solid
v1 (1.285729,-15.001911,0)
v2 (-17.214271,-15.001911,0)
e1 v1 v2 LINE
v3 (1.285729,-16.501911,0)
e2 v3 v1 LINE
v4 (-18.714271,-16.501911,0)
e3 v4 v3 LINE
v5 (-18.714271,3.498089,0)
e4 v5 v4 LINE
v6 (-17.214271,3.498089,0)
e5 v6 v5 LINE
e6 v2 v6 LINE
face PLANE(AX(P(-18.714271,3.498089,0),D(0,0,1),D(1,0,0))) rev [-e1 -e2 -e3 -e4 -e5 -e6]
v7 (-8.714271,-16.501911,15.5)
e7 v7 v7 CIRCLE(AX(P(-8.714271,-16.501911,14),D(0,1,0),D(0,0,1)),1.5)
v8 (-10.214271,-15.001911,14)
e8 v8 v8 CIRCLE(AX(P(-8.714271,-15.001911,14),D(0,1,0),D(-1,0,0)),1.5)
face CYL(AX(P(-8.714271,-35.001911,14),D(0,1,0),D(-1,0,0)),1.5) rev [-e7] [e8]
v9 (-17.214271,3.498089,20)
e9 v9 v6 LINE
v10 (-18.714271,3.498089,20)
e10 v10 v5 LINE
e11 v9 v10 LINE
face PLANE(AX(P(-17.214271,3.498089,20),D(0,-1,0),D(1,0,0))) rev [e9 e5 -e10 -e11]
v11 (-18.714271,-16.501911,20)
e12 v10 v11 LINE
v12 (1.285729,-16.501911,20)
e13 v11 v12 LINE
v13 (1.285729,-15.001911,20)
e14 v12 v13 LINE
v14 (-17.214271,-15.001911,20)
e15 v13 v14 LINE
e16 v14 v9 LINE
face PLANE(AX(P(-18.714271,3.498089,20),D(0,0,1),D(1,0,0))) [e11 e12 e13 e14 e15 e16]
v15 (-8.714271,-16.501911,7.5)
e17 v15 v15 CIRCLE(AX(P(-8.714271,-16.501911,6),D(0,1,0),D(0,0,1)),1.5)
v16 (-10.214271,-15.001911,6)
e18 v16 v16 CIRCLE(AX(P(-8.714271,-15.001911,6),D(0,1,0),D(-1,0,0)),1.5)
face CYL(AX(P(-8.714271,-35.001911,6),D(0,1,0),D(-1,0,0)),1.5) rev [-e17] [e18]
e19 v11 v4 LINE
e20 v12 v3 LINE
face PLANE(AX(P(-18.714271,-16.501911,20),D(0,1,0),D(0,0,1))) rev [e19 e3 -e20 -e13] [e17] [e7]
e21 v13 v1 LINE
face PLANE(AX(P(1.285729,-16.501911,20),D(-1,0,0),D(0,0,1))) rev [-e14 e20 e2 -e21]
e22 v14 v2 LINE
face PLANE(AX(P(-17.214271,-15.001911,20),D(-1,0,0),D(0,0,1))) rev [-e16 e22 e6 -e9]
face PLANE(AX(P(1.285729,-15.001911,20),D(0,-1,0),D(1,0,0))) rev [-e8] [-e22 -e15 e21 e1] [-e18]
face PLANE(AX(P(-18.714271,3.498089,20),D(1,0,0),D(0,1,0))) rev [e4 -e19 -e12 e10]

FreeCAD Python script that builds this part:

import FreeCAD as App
import Part
import Sketcher

V = App.Vector


def add_polygon(sketch, points):
    """Adds a closed chain of lines whose ends are joined by coincident constraints."""
    first, n = sketch.GeometryCount, len(points)
    for a, b in zip(points, points[1:] + points[:1]):
        sketch.addGeometry(Part.LineSegment(App.Vector(*a, 0), App.Vector(*b, 0)), False)
    for i in range(n):
        sketch.addConstraint(Sketcher.Constraint("Coincident", first + i, 2, first + (i + 1) % n, 1))

doc = App.newDocument("Part")
body = doc.addObject("PartDesign::Body", "Body")

# Sketch on XY plane
sketch1 = body.newObject("Sketcher::SketchObject", "Sketch")
sketch1.AttachmentSupport = (doc.getObject("XY_Plane"), [""])
sketch1.MapMode = "FlatFace"
add_polygon(sketch1, [(-18.7, 3.5), (-18.7, -16.5), (1.3, -16.5), (1.3, -15), (-17.2, -15), (-17.2, 3.5)])  # lines 0-5
sketch1.addConstraint([
    Sketcher.Constraint("Vertical", 0),
    Sketcher.Constraint("Horizontal", 1),
    Sketcher.Constraint("Vertical", 2),
    Sketcher.Constraint("Horizontal", 3),
    Sketcher.Constraint("Vertical", 4),
    Sketcher.Constraint("Horizontal", 5),
    Sketcher.Constraint("Equal", 1, 0),
    Sketcher.Constraint("Equal", 5, 2),
    Sketcher.Constraint("DistanceX", 1, 1, 1, 2, 20.0),
    Sketcher.Constraint("DistanceX", 3, 2, 3, 1, 18.5),
    Sketcher.Constraint("DistanceX", 0, 2, -1, 1, 18.714271),
    Sketcher.Constraint("DistanceY", 0, 2, -1, 1, 16.501911),
])
pad1 = body.newObject("PartDesign::Pad", "Pad")
pad1.Profile = sketch1
pad1.Length = 20

# Sketch on XZ plane
sketch2 = body.newObject("Sketcher::SketchObject", "Sketch001")
sketch2.AttachmentSupport = (doc.getObject("XZ_Plane"), [""])
sketch2.MapMode = "FlatFace"
sketch2.AttachmentOffset = App.Placement(V(0, 0, 15.001911), App.Rotation())
sketch2.addGeometry([
    Part.Circle(V(-8.7, 14, 0), V(0, 0, 1), 1.5),
    Part.Circle(V(-8.7, 6, 0), V(0, 0, 1), 1.5),
], False)
sketch2.addConstraint([
    Sketcher.Constraint("Equal", 0, 1),
    Sketcher.Constraint("Vertical", 0, 3, 1, 3),
    Sketcher.Constraint("Diameter", 0, 3.0),
    Sketcher.Constraint("DistanceY", -1, 1, 0, 3, 14.0),
    Sketcher.Constraint("DistanceY", -1, 1, 1, 3, 6.0),
    Sketcher.Constraint("DistanceX", 0, 3, -1, 1, 8.714271),
])
pocket1 = body.newObject("PartDesign::Pocket", "Pocket")
pocket1.Profile = sketch2
pocket1.Length = 20
pocket1.Reversed = True

doc.recompute()
